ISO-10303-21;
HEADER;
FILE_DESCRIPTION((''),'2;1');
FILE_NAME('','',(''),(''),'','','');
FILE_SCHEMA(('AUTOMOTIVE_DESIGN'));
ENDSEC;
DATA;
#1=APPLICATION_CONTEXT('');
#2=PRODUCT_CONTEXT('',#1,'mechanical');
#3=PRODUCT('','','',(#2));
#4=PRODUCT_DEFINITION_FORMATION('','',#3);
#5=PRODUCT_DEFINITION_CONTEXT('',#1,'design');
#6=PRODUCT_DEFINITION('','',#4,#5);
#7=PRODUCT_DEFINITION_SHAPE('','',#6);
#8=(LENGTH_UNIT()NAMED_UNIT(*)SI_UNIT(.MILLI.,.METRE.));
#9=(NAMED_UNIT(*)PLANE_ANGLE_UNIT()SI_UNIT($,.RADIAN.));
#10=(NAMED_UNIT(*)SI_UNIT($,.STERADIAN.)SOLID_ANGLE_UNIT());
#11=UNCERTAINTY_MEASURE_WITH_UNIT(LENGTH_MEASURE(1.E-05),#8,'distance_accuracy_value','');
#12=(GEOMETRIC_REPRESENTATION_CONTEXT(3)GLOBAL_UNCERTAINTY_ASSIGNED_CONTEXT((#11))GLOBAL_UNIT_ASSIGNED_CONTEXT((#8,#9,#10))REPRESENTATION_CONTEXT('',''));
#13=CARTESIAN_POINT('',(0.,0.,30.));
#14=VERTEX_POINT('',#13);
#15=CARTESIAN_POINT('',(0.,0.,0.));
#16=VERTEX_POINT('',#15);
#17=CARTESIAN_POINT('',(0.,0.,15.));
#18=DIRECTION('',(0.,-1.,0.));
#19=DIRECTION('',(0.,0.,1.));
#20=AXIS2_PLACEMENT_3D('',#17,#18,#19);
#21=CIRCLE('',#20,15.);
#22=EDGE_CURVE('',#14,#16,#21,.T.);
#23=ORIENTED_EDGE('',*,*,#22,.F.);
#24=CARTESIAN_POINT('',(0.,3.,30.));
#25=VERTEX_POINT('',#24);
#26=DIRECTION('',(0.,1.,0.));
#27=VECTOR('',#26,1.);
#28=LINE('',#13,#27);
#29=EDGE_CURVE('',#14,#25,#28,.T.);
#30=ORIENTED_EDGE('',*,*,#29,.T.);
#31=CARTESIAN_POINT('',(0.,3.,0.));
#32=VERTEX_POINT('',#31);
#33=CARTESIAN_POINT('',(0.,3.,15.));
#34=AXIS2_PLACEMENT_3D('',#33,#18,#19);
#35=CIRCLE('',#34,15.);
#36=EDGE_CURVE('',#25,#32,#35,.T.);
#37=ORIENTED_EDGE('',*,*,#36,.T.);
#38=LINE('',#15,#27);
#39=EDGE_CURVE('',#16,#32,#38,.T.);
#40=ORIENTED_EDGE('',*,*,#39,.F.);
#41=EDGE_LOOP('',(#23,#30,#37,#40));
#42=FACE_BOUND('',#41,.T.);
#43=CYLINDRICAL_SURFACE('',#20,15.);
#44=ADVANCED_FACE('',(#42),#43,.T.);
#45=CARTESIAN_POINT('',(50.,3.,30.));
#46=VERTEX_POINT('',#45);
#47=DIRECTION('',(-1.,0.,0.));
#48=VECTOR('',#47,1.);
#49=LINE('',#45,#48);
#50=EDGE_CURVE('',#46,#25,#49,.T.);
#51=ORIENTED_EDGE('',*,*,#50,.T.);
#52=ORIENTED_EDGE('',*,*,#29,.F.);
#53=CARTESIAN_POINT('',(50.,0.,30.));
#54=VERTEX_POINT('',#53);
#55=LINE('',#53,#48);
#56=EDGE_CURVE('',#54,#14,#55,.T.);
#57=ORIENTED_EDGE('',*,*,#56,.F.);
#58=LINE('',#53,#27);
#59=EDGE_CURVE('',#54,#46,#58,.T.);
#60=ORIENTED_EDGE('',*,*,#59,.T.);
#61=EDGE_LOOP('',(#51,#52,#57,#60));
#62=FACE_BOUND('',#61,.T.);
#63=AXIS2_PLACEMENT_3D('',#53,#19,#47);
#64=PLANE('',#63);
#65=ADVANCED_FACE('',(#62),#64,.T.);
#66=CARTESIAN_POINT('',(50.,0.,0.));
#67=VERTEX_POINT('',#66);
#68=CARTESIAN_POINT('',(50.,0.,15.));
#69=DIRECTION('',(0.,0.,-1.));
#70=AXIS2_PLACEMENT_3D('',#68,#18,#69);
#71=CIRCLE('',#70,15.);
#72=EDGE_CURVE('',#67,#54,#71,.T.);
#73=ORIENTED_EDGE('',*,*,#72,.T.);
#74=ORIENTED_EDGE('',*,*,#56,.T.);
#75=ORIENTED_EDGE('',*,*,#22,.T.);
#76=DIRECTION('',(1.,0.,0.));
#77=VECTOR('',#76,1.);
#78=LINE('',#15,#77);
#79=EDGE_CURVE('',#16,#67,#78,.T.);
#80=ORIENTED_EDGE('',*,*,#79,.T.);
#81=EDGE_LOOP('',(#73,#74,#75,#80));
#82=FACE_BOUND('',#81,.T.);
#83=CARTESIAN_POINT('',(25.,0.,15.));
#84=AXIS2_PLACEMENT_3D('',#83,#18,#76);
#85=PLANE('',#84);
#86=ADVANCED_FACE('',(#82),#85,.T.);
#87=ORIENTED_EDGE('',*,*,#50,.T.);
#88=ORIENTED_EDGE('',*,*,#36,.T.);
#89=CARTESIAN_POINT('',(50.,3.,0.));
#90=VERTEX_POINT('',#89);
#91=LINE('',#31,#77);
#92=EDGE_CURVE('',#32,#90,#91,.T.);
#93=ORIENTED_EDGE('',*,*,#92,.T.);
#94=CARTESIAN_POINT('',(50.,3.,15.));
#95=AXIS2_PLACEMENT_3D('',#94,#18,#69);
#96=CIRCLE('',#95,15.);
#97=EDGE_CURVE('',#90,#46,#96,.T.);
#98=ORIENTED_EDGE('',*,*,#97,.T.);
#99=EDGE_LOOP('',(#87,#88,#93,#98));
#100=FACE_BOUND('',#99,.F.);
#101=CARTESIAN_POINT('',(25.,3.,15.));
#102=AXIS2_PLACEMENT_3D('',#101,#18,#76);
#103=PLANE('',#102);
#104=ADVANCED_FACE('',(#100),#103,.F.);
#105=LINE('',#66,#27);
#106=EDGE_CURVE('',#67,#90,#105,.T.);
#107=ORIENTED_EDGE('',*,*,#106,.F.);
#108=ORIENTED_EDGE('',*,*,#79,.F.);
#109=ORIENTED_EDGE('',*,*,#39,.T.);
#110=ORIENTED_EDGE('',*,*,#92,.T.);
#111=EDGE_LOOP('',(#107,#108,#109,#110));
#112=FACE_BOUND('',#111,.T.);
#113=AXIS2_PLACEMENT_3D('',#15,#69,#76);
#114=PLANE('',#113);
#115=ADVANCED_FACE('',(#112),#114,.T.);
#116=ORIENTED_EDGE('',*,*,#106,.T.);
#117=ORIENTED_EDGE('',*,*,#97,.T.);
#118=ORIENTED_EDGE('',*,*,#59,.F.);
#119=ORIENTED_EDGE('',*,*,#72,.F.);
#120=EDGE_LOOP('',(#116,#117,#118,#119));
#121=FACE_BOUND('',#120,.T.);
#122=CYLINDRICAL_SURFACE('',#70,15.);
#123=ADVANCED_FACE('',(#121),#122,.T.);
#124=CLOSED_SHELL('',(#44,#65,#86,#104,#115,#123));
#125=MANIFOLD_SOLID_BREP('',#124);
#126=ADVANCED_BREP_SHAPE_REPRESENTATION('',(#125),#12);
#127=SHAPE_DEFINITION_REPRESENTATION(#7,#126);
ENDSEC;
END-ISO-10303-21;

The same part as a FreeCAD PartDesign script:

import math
import FreeCAD as App
import Part
import Sketcher
from FreeCAD import Vector

doc = App.newDocument("Part")
body = doc.addObject("PartDesign::Body", "Body")

# Sketch on XZ plane
sketch1 = body.newObject("Sketcher::SketchObject", "Sketch")
sketch1.AttachmentSupport = (doc.getObject("XZ_Plane"), [""])
sketch1.MapMode = "FlatFace"
sketch1.addGeometry(Part.ArcOfCircle(Part.Circle(Vector(0, 15, 0), Vector(0, 0, 1), 15), math.radians(90), math.radians(270)), False)
sketch1.addGeometry(Part.LineSegment(Vector(0, 0, 0), Vector(50, 0, 0)), False)
sketch1.addGeometry(Part.ArcOfCircle(Part.Circle(Vector(50, 15, 0), Vector(0, 0, 1), 15), math.radians(-90), math.radians(90)), False)
sketch1.addGeometry(Part.LineSegment(Vector(50, 30, 0), Vector(0, 30, 0)), False)
sketch1.addConstraint(Sketcher.Constraint("Tangent", 0, 2, 1, 1))
sketch1.addConstraint(Sketcher.Constraint("Tangent", 1, 2, 2, 1))
sketch1.addConstraint(Sketcher.Constraint("Tangent", 2, 2, 3, 1))
sketch1.addConstraint(Sketcher.Constraint("Tangent", 3, 2, 0, 1))
sketch1.addConstraint(Sketcher.Constraint("Horizontal", 1))
sketch1.addConstraint(Sketcher.Constraint("Horizontal", 3))
sketch1.addConstraint(Sketcher.Constraint("Coincident", 0, 2, -1, 1))
sketch1.addConstraint(Sketcher.Constraint("Radius", 0, 15.0))
sketch1.addConstraint(Sketcher.Constraint("DistanceX", 1, 1, 1, 2, 50.0))
pad1 = body.newObject("PartDesign::Pad", "Pad")
pad1.Profile = sketch1
pad1.Length = 3
pad1.Reversed = True

doc.recompute()
